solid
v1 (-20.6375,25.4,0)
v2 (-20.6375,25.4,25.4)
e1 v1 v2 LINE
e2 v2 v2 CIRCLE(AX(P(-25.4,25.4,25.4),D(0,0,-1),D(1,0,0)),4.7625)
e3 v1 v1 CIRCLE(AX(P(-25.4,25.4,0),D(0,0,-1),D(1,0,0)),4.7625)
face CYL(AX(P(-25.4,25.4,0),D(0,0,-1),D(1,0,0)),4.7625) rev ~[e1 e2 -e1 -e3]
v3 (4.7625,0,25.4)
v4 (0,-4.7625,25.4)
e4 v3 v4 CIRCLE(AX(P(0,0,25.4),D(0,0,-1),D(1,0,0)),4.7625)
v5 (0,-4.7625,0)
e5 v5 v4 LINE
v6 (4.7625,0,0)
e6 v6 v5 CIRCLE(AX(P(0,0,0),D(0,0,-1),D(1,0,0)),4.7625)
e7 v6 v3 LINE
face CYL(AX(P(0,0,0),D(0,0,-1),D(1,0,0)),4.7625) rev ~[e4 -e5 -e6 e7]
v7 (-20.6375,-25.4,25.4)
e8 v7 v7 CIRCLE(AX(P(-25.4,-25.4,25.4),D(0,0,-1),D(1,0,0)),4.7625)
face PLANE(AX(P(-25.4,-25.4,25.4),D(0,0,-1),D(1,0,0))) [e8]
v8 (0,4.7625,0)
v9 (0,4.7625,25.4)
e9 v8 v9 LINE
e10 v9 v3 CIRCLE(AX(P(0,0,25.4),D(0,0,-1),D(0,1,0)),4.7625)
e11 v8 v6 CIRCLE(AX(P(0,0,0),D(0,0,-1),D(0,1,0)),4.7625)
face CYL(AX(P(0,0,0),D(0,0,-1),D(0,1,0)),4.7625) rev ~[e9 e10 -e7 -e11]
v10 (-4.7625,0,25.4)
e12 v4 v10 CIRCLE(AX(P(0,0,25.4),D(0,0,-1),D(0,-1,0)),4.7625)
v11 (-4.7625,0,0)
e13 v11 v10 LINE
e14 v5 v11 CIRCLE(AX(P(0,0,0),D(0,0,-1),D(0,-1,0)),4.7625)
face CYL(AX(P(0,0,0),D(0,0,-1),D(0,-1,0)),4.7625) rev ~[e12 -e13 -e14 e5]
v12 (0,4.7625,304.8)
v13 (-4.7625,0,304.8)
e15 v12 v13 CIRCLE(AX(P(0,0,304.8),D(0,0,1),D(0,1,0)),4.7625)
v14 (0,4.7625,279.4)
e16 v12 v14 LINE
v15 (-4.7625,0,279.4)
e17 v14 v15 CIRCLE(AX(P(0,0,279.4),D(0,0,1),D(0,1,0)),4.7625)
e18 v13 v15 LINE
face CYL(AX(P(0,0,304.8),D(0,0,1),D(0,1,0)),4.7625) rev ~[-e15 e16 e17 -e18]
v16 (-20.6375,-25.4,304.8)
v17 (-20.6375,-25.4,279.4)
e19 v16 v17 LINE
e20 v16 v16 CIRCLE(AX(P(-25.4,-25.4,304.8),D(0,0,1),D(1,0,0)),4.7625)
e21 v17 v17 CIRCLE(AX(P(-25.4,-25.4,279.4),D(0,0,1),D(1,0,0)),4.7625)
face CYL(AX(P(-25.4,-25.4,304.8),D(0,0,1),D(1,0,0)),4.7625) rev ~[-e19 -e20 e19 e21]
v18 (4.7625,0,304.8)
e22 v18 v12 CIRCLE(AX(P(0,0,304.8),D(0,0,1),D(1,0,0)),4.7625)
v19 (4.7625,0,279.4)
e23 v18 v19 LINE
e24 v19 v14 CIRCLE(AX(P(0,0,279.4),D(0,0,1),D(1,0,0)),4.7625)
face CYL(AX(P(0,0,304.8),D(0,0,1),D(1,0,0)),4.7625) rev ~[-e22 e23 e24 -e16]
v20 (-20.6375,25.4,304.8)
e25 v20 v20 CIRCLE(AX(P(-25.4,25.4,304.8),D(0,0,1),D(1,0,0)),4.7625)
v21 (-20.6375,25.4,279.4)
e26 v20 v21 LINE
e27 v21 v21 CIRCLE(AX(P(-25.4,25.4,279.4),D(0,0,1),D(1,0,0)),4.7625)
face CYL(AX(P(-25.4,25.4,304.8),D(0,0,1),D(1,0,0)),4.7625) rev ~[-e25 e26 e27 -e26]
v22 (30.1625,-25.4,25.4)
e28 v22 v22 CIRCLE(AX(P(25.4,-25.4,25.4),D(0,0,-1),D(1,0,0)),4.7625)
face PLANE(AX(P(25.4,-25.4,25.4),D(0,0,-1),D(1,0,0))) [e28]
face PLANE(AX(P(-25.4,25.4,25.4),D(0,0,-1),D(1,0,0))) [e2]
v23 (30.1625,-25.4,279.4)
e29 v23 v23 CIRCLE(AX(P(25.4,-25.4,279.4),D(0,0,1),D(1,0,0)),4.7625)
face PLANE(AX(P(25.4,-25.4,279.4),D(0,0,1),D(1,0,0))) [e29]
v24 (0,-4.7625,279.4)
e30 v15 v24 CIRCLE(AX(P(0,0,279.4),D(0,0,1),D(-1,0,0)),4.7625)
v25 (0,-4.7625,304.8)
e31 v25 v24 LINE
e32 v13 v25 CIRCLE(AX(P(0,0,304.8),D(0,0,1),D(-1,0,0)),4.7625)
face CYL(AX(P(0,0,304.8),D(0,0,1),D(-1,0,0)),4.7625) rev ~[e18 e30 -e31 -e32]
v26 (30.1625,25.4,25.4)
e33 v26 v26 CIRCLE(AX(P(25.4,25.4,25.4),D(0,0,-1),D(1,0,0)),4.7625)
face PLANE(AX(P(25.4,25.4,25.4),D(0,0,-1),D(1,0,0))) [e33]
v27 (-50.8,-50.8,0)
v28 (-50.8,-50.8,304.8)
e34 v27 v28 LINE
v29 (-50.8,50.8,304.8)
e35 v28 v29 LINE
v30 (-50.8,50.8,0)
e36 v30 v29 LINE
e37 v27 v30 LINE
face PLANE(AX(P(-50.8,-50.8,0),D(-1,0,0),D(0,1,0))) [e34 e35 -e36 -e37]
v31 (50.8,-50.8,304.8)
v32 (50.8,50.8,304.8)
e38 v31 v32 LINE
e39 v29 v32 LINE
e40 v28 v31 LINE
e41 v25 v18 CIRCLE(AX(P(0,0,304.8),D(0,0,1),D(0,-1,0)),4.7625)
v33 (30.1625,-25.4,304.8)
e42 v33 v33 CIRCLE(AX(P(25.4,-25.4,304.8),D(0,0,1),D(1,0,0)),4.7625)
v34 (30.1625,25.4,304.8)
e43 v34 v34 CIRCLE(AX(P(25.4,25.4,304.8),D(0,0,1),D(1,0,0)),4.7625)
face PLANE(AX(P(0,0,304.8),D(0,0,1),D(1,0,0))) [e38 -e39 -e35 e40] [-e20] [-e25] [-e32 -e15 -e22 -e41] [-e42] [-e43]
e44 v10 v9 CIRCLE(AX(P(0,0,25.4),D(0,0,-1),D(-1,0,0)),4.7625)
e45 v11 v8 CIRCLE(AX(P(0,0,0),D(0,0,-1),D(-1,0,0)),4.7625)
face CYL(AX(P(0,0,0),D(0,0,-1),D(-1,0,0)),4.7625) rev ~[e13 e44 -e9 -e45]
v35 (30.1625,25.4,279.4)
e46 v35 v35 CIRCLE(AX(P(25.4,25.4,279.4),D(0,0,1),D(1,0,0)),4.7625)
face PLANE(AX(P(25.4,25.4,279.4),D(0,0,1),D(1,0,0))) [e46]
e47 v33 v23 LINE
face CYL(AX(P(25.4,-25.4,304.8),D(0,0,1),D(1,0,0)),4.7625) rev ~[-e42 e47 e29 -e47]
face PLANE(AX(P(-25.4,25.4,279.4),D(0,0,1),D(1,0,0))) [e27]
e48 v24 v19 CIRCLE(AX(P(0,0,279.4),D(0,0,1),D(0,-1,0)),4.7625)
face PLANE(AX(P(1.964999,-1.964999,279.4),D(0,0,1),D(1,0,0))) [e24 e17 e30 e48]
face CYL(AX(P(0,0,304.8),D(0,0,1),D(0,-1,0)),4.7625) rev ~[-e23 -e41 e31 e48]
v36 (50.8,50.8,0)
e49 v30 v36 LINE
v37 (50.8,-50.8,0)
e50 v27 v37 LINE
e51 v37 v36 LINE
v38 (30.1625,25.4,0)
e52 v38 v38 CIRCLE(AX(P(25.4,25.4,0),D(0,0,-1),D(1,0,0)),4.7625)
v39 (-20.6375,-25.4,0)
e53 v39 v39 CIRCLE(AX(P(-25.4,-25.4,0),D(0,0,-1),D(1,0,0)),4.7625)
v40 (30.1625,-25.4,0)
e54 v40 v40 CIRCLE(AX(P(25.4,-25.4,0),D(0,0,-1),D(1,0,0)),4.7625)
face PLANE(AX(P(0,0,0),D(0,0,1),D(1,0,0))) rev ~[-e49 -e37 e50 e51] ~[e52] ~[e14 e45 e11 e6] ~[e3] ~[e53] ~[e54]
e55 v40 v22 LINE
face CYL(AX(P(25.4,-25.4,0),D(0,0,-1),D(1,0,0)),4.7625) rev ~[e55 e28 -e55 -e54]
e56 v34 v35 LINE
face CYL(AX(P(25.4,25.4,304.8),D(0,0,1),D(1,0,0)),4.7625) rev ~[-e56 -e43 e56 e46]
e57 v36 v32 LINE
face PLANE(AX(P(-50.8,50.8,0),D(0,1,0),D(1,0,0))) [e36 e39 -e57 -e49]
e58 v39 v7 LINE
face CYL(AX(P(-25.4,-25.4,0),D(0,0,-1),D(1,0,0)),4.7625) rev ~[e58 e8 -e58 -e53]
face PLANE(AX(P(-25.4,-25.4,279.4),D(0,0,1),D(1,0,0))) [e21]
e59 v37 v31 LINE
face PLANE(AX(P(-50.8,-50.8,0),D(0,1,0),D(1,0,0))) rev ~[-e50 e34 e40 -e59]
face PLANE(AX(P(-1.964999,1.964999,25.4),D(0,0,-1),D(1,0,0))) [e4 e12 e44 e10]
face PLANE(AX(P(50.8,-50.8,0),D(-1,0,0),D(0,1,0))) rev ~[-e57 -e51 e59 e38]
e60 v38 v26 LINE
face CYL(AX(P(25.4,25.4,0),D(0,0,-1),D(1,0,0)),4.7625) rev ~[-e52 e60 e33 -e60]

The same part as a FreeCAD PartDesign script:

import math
import FreeCAD as App
import Part
import Sketcher
Q = App.Units.Quantity

doc = App.newDocument("Part")
body = doc.addObject("PartDesign::Body", "Body")

# Sketch on XY plane
sketch1 = doc.addObject("Sketcher::SketchObject", "Sketch")
body.addObject(sketch1)
sketch1.AttachmentSupport = (doc.XY_Plane, [""])
sketch1.MapMode = "FlatFace"
sketch1.addGeometry([
    Part.LineSegment(App.Vector(-50.8, 50.8, 0), App.Vector(-50.8, -50.8, 0)),
    Part.LineSegment(App.Vector(-50.8, -50.8, 0), App.Vector(50.8, -50.8, 0)),
    Part.LineSegment(App.Vector(50.8, -50.8, 0), App.Vector(50.8, 50.8, 0)),
    Part.LineSegment(App.Vector(50.8, 50.8, 0), App.Vector(-50.8, 50.8, 0)),
], False)
sketch1.addConstraint([
    Sketcher.Constraint("Coincident", 0, 2, 1, 1),
    Sketcher.Constraint("Coincident", 1, 2, 2, 1),
    Sketcher.Constraint("Coincident", 2, 2, 3, 1),
    Sketcher.Constraint("Coincident", 3, 2, 0, 1),
    Sketcher.Constraint("Vertical", 0),
    Sketcher.Constraint("Horizontal", 1),
    Sketcher.Constraint("Vertical", 2),
    Sketcher.Constraint("Horizontal", 3),
    Sketcher.Constraint("Symmetric", 0, 2, 2, 2, -1, 1),
    Sketcher.Constraint("Equal", 3, 0),
    Sketcher.Constraint("DistanceX", 1, 1, 1, 2, Q("4 in")),
])
pad1 = doc.addObject("PartDesign::Pad", "Pad")
body.addObject(pad1)
pad1.Profile = sketch1
pad1.Length = Q("12 in")

# Sketch on XY plane
sketch2 = doc.addObject("Sketcher::SketchObject", "Sketch001")
body.addObject(sketch2)
sketch2.AttachmentSupport = (doc.XY_Plane, [""])
sketch2.MapMode = "FlatFace"
sketch2.AttachmentOffset = App.Placement(App.Vector(0, 0, 12 * 25.4), App.Rotation())
sketch2.addGeometry([
    Part.Circle(App.Vector(-25.4, 25.4, 0), App.Vector(0, 0, 1), 4.7625),  # 0
    Part.Circle(App.Vector(25.4, 25.4, 0), App.Vector(0, 0, 1), 4.7625),  # 1
    Part.Circle(App.Vector(25.4, -25.4, 0), App.Vector(0, 0, 1), 4.7625),  # 2
    Part.ArcOfCircle(Part.Circle(App.Vector(0, 0, 0), App.Vector(0, 0, 1), 4.7625), math.radians(-90), math.radians(0)),  # 3
    Part.ArcOfCircle(Part.Circle(App.Vector(0, 0, 0), App.Vector(0, 0, 1), 4.7625), math.radians(0), math.radians(90)),  # 4
    Part.ArcOfCircle(Part.Circle(App.Vector(0, 0, 0), App.Vector(0, 0, 1), 4.7625), math.radians(90), math.radians(180)),  # 5
    Part.ArcOfCircle(Part.Circle(App.Vector(0, 0, 0), App.Vector(0, 0, 1), 4.7625), math.radians(180), math.radians(270)),  # 6
    Part.Circle(App.Vector(-25.4, -25.4, 0), App.Vector(0, 0, 1), 4.7625),  # 7
], False)
sketch2.addConstraint([
    Sketcher.Constraint("Tangent", 3, 2, 4, 1),
    Sketcher.Constraint("Tangent", 4, 2, 5, 1),
    Sketcher.Constraint("Tangent", 5, 2, 6, 1),
    Sketcher.Constraint("Tangent", 6, 2, 3, 1),
    Sketcher.Constraint("Coincident", 3, 3, -1, 1),
    Sketcher.Constraint("Equal", 0, 1),
    Sketcher.Constraint("Equal", 1, 2),
    Sketcher.Constraint("Equal", 2, 3),
    Sketcher.Constraint("Equal", 3, 4),
    Sketcher.Constraint("Equal", 6, 7),
    Sketcher.Constraint("Symmetric", 0, 3, 2, 3, -1, 1),
    Sketcher.Constraint("Symmetric", 1, 3, 7, 3, -1, 1),
    Sketcher.Constraint("Symmetric", 0, 3, 1, 3, -2),
    Sketcher.Constraint("PointOnObject", 3, 2, -1),
    Sketcher.Constraint("PointOnObject", 4, 2, -2),
    Sketcher.Constraint("PointOnObject", 5, 2, -1),
    Sketcher.Constraint("PointOnObject", 6, 2, -2),
    Sketcher.Constraint("Diameter", 0, Q("0.375 in")),
    Sketcher.Constraint("DistanceX", 0, 3, -1, 1, Q("1 in")),
    Sketcher.Constraint("DistanceY", -1, 1, 0, 3, Q("1 in")),
])
pocket1 = doc.addObject("PartDesign::Pocket", "Pocket")
body.addObject(pocket1)
pocket1.Profile = sketch2
pocket1.Length = Q("1 in")

# Sketch on XY plane
sketch3 = doc.addObject("Sketcher::SketchObject", "Sketch002")
body.addObject(sketch3)
sketch3.AttachmentSupport = (doc.XY_Plane, [""])
sketch3.MapMode = "FlatFace"
sketch3.addGeometry([
    Part.Circle(App.Vector(-25.4, -25.4, 0), App.Vector(0, 0, 1), 4.7625),  # 0
    Part.Circle(App.Vector(25.4, -25.4, 0), App.Vector(0, 0, 1), 4.7625),  # 1
    Part.Circle(App.Vector(25.4, 25.4, 0), App.Vector(0, 0, 1), 4.7625),  # 2
    Part.Circle(App.Vector(-25.4, 25.4, 0), App.Vector(0, 0, 1), 4.7625),  # 3
    Part.ArcOfCircle(Part.Circle(App.Vector(0, 0, 0), App.Vector(0, 0, 1), 4.7625), math.radians(90), math.radians(180)),  # 4
    Part.ArcOfCircle(Part.Circle(App.Vector(0, 0, 0), App.Vector(0, 0, 1), 4.7625), math.radians(0), math.radians(90)),  # 5
    Part.ArcOfCircle(Part.Circle(App.Vector(0, 0, 0), App.Vector(0, 0, 1), 4.7625), math.radians(-90), math.radians(0)),  # 6
    Part.ArcOfCircle(Part.Circle(App.Vector(0, 0, 0), App.Vector(0, 0, 1), 4.7625), math.radians(180), math.radians(270)),  # 7
], False)
sketch3.addConstraint([
    Sketcher.Constraint("Tangent", 4, 1, 5, 2),
    Sketcher.Constraint("Tangent", 5, 1, 6, 2),
    Sketcher.Constraint("Tangent", 6, 1, 7, 2),
    Sketcher.Constraint("Tangent", 7, 1, 4, 2),
    Sketcher.Constraint("Coincident", 4, 3, -1, 1),
    Sketcher.Constraint("Equal", 0, 1),
    Sketcher.Constraint("Equal", 1, 2),
    Sketcher.Constraint("Equal", 2, 3),
    Sketcher.Constraint("Equal", 3, 4),
    Sketcher.Constraint("Equal", 4, 5),
    Sketcher.Constraint("Symmetric", 0, 3, 2, 3, -1, 1),
    Sketcher.Constraint("Symmetric", 1, 3, 3, 3, -1, 1),
    Sketcher.Constraint("Symmetric", 0, 3, 1, 3, -2),
    Sketcher.Constraint("PointOnObject", 4, 1, -2),
    Sketcher.Constraint("PointOnObject", 5, 1, -1),
    Sketcher.Constraint("PointOnObject", 6, 1, -2),
    Sketcher.Constraint("PointOnObject", 7, 1, -1),
    Sketcher.Constraint("Diameter", 0, Q("0.375 in")),
    Sketcher.Constraint("DistanceX", 0, 3, -1, 1, Q("1 in")),
    Sketcher.Constraint("DistanceY", 0, 3, -1, 1, Q("1 in")),
])
pocket2 = doc.addObject("PartDesign::Pocket", "Pocket001")
body.addObject(pocket2)
pocket2.Profile = sketch3
pocket2.Length = Q("1 in")
pocket2.Reversed = True

doc.recompute()
